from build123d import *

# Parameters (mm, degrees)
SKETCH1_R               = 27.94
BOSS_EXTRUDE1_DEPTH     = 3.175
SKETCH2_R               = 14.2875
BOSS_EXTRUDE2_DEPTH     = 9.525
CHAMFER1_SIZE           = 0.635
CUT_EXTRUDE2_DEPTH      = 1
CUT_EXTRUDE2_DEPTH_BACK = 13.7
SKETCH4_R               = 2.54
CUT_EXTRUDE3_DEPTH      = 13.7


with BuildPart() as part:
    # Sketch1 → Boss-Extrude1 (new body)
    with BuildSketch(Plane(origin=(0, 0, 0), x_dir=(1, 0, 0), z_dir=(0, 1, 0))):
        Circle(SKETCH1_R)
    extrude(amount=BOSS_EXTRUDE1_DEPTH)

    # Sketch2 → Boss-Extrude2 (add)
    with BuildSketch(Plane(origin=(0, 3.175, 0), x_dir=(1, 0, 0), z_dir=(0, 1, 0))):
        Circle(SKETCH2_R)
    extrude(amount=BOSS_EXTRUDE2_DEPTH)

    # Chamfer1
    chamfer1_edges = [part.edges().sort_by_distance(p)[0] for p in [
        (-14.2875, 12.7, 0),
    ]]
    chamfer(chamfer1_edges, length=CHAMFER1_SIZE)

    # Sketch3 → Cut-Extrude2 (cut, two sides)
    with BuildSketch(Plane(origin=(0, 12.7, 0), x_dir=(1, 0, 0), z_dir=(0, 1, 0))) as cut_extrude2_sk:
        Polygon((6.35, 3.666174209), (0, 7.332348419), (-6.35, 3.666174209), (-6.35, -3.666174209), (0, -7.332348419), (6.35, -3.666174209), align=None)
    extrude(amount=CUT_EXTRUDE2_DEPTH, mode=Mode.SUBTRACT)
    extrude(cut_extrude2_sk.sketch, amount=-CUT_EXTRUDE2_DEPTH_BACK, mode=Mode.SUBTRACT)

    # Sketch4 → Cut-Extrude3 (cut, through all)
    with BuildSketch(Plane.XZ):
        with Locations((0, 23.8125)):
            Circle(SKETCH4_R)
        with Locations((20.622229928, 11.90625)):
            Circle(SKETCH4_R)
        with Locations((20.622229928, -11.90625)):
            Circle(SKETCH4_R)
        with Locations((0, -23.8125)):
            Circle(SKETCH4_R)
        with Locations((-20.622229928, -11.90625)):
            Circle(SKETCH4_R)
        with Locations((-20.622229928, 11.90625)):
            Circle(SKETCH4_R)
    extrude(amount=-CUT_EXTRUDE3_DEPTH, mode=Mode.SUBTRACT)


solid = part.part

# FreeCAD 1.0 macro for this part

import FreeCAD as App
import Part
import Sketcher

V = App.Vector
Q = App.Units.Quantity


def edges_at(feature, points):
    """Names of the edges that pass closest to the given points."""
    edges = feature.Shape.Edges
    near = lambda p: min(range(len(edges)), key=lambda i: edges[i].distToShape(Part.Vertex(*p))[0])
    return sorted({f"Edge{near(p) + 1}" for p in points})

doc = App.newDocument("Part")
params = doc.addObject("Spreadsheet::Sheet", "Params")
for row, (alias, value) in enumerate([
    ("sketch1_diameter", "2.2 in"),
    ("pad1_length", "0.125 in"),
    ("sketch2_diameter", "1.125 in"),
    ("pad2_length", "0.375 in"),
    ("chamfer_size", "0.025 in"),
    ("sketch4_diameter", "0.2 in"),
], start=1):
    params.set(f"A{row}", alias)
    params.set(f"B{row}", "=" + value)
    params.setAlias(f"B{row}", alias)

body = doc.addObject("PartDesign::Body", "Body")

sketch1 = doc.addObject("Sketcher::SketchObject", "Sketch")
body.addObject(sketch1)
sketch1.AttachmentSupport = (doc.XZ_Plane, [""])
sketch1.MapMode = "FlatFace"
sketch1.addGeometry(Part.Circle(V(0, 0, 0), V(0, 0, 1), 27.94), False)
sketch1.addConstraint([
    Sketcher.Constraint("Coincident", 0, 3, -1, 1),
    Sketcher.Constraint("Diameter", 0, Q("2.2 in")),
])
sketch1.setExpression("Constraints[1]", "Params.sketch1_diameter")
pad1 = doc.addObject("PartDesign::Pad", "Pad")
body.addObject(pad1)
pad1.Profile = sketch1
pad1.setExpression("Length", "Params.pad1_length")
pad1.Reversed = True

sketch2 = doc.addObject("Sketcher::SketchObject", "Sketch001")
body.addObject(sketch2)
sketch2.AttachmentSupport = (doc.XZ_Plane, [""])
sketch2.MapMode = "FlatFace"
sketch2.AttachmentOffset = App.Placement(V(0, 0, -0.125 * 25.4), App.Rotation())
sketch2.addGeometry(Part.Circle(V(0, 0, 0), V(0, 0, 1), 14.2875), False)
sketch2.addConstraint([
    Sketcher.Constraint("Coincident", 0, 3, -1, 1),
    Sketcher.Constraint("Diameter", 0, Q("1.125 in")),
])
sketch2.setExpression("Constraints[1]", "Params.sketch2_diameter")
pad2 = doc.addObject("PartDesign::Pad", "Pad001")
body.addObject(pad2)
pad2.Profile = sketch2
pad2.setExpression("Length", "Params.pad2_length")
pad2.Reversed = True
doc.recompute()

chamfer = doc.addObject("PartDesign::Chamfer", "Chamfer")
body.addObject(chamfer)
chamfer.Base = (pad2, edges_at(pad2, [(-14.287, 12.7, 0)]))
chamfer.setExpression("Size", "Params.chamfer_size")

sketch3 = doc.addObject("Sketcher::SketchObject", "Sketch002")
body.addObject(sketch3)
sketch3.AttachmentSupport = (doc.XZ_Plane, [""])
sketch3.MapMode = "FlatFace"
sketch3.AttachmentOffset = App.Placement(V(0, 0, -0.5 * 25.4), App.Rotation())
sketch3.addGeometry([
    Part.LineSegment(V(6.35, -3.666174, 0), V(0, -7.332348, 0)),
    Part.LineSegment(V(0, -7.332348, 0), V(-6.35, -3.666174, 0)),
    Part.LineSegment(V(-6.35, -3.666174, 0), V(-6.35, 3.666174, 0)),
    Part.LineSegment(V(-6.35, 3.666174, 0), V(0, 7.332348, 0)),
    Part.LineSegment(V(0, 7.332348, 0), V(6.35, 3.666174, 0)),
    Part.LineSegment(V(6.35, 3.666174, 0), V(6.35, -3.666174, 0)),
], False)
sketch3.addConstraint([
    Sketcher.Constraint("Coincident", 0, 2, 1, 1),
    Sketcher.Constraint("Coincident", 1, 2, 2, 1),
    Sketcher.Constraint("Coincident", 2, 2, 3, 1),
    Sketcher.Constraint("Coincident", 3, 2, 4, 1),
    Sketcher.Constraint("Coincident", 4, 2, 5, 1),
    Sketcher.Constraint("Coincident", 5, 2, 0, 1),
    Sketcher.Constraint("Vertical", 2),
    Sketcher.Constraint("Vertical", 5),
    Sketcher.Constraint("Symmetric", 0, 2, 3, 2, -1, 1),
    Sketcher.Constraint("Symmetric", 1, 2, 4, 2, -1, 1),
    Sketcher.Constraint("PointOnObject", 0, 2, -2),
    Sketcher.Constraint("Parallel", 0, 3),
    Sketcher.Constraint("Horizontal", 2, 2, 4, 2),
    Sketcher.Constraint("Angle", 0, Q("-150 deg")),
    Sketcher.Constraint("DistanceX", 2, 2, 4, 2, Q("0.5 in")),
    Sketcher.Constraint("DistanceY", 2, 1, 2, 2, Q("7.332348 mm")),
])
pocket1 = doc.addObject("PartDesign::Pocket", "Pocket")
body.addObject(pocket1)
pocket1.Profile = sketch3
pocket1.Type = "ThroughAll"
pocket1.Midplane = True

sketch4 = doc.addObject("Sketcher::SketchObject", "Sketch003")
body.addObject(sketch4)
sketch4.AttachmentSupport = (doc.XZ_Plane, [""])
sketch4.MapMode = "FlatFace"
sketch4.addGeometry([
    Part.Circle(V(0, 23.8125, 0), V(0, 0, 1), 2.54),
    Part.Circle(V(20.62223, 11.90625, 0), V(0, 0, 1), 2.54),
    Part.Circle(V(20.62223, -11.90625, 0), V(0, 0, 1), 2.54),
    Part.Circle(V(0, -23.8125, 0), V(0, 0, 1), 2.54),
    Part.Circle(V(-20.62223, -11.90625, 0), V(0, 0, 1), 2.54),
    Part.Circle(V(-20.62223, 11.90625, 0), V(0, 0, 1), 2.54),
], False)
sketch4.addConstraint([
    Sketcher.Constraint("Equal", 0, 1),
    Sketcher.Constraint("Equal", 1, 2),
    Sketcher.Constraint("Equal", 2, 3),
    Sketcher.Constraint("Equal", 3, 4),
    Sketcher.Constraint("Equal", 4, 5),
    Sketcher.Constraint("Symmetric", 0, 3, 3, 3, -1, 1),
    Sketcher.Constraint("Symmetric", 1, 3, 4, 3, -1, 1),
    Sketcher.Constraint("Symmetric", 2, 3, 5, 3, -1, 1),
    Sketcher.Constraint("Symmetric", 2, 3, 4, 3, -2),
    Sketcher.Constraint("PointOnObject", 0, 3, -2),
    Sketcher.Constraint("Diameter", 0, Q("0.2 in")),
    Sketcher.Constraint("DistanceY", -1, 1, 0, 3, Q("0.9375 in")),
    Sketcher.Constraint("DistanceY", -1, 1, 1, 3, Q("0.46875 in")),
    Sketcher.Constraint("DistanceX", -1, 1, 1, 3, Q("20.62223 mm")),
])
sketch4.setExpression("Constraints[10]", "Params.sketch4_diameter")
pocket2 = doc.addObject("PartDesign::Pocket", "Pocket001")
body.addObject(pocket2)
pocket2.Profile = sketch4
pocket2.Type = "ThroughAll"

doc.recompute()
